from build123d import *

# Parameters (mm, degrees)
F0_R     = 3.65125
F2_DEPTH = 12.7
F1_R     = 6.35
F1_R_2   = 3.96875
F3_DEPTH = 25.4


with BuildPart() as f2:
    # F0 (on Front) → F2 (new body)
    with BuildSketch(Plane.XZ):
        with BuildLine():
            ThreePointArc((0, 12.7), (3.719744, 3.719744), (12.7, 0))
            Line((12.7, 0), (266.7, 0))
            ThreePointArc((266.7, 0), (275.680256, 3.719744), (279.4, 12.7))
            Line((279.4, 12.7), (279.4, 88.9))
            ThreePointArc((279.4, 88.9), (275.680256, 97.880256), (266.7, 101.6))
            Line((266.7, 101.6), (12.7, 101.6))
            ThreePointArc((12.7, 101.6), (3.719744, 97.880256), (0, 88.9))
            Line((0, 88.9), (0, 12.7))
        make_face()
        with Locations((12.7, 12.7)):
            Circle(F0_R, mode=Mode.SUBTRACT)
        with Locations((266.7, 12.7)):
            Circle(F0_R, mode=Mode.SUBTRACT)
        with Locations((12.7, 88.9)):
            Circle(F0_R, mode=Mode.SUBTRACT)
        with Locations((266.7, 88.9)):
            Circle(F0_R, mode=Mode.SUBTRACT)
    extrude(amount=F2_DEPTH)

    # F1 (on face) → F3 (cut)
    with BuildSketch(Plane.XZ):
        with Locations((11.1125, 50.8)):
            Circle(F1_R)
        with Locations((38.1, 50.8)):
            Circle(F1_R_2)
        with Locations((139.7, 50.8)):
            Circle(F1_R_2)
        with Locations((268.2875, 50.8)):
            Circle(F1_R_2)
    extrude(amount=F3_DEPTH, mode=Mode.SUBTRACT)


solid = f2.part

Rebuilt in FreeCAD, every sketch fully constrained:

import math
import FreeCAD as App
import Part
import Sketcher
Q = App.Units.Quantity

doc = App.newDocument("Part")
params = doc.addObject("Spreadsheet::Sheet", "Params")
for row, (alias, value) in enumerate([
    ("sketch1_radius", "0.5 in"),
    ("sketch1_width", "10 in"),
    ("sketch1_height", "3 in"),
    ("pad1_length", "0.5 in"),
    ("sketch2_diameter", "0.5 in"),
    ("sketch2_diameter2", "0.3125 in"),
    ("pocket1_length", "1 in"),
], start=1):
    params.set(f"A{row}", alias)
    params.set(f"B{row}", "=" + value)
    params.setAlias(f"B{row}", alias)

body = doc.addObject("PartDesign::Body", "Body")

sketch1 = body.newObject("Sketcher::SketchObject", "Sketch")
sketch1.AttachmentSupport = (doc.getObject("XZ_Plane"), [""])
sketch1.MapMode = "FlatFace"
sketch1.addGeometry([
    Part.ArcOfCircle(Part.Circle(App.Vector(12.7, 12.7, 0), App.Vector(0, 0, 1), 12.7), math.radians(-180), math.radians(-90)),
    Part.LineSegment(App.Vector(12.7, 0, 0), App.Vector(266.7, 0, 0)),
    Part.ArcOfCircle(Part.Circle(App.Vector(266.7, 12.7, 0), App.Vector(0, 0, 1), 12.7), math.radians(-90), math.radians(0)),
    Part.LineSegment(App.Vector(279.4, 12.7, 0), App.Vector(279.4, 88.9, 0)),
    Part.ArcOfCircle(Part.Circle(App.Vector(266.7, 88.9, 0), App.Vector(0, 0, 1), 12.7), math.radians(0), math.radians(90)),
    Part.LineSegment(App.Vector(266.7, 101.6, 0), App.Vector(12.7, 101.6, 0)),
    Part.ArcOfCircle(Part.Circle(App.Vector(12.7, 88.9, 0), App.Vector(0, 0, 1), 12.7), math.radians(90), math.radians(180)),
    Part.LineSegment(App.Vector(0, 88.9, 0), App.Vector(0, 12.7, 0)),
    Part.Circle(App.Vector(12.7, 12.7, 0), App.Vector(0, 0, 1), 3.7),
    Part.Circle(App.Vector(266.7, 12.7, 0), App.Vector(0, 0, 1), 3.7),
    Part.Circle(App.Vector(12.7, 88.9, 0), App.Vector(0, 0, 1), 3.7),
    Part.Circle(App.Vector(266.7, 88.9, 0), App.Vector(0, 0, 1), 3.7),
], False)
sketch1.addConstraint([
    Sketcher.Constraint("Tangent", 0, 2, 1, 1),
    Sketcher.Constraint("Tangent", 1, 2, 2, 1),
    Sketcher.Constraint("Tangent", 2, 2, 3, 1),
    Sketcher.Constraint("Tangent", 3, 2, 4, 1),
    Sketcher.Constraint("Tangent", 4, 2, 5, 1),
    Sketcher.Constraint("Tangent", 5, 2, 6, 1),
    Sketcher.Constraint("Tangent", 6, 2, 7, 1),
    Sketcher.Constraint("Tangent", 7, 2, 0, 1),
    Sketcher.Constraint("Horizontal", 1),
    Sketcher.Constraint("Vertical", 3),
    Sketcher.Constraint("Horizontal", 5),
    Sketcher.Constraint("Vertical", 7),
    Sketcher.Constraint("Coincident", 8, 3, 0, 3),
    Sketcher.Constraint("Coincident", 9, 3, 2, 3),
    Sketcher.Constraint("Coincident", 10, 3, 6, 3),
    Sketcher.Constraint("Coincident", 11, 3, 4, 3),
    Sketcher.Constraint("Equal", 0, 2),
    Sketcher.Constraint("Equal", 2, 4),
    Sketcher.Constraint("Equal", 4, 6),
    Sketcher.Constraint("Equal", 8, 9),
    Sketcher.Constraint("Equal", 9, 10),
    Sketcher.Constraint("Equal", 10, 11),
    Sketcher.Constraint("PointOnObject", 0, 2, -1),
    Sketcher.Constraint("PointOnObject", 6, 2, -2),
    Sketcher.Constraint("Radius", 0, Q("0.5 in")),
    Sketcher.Constraint("DistanceX", 1, 1, 1, 2, Q("10 in")),
    Sketcher.Constraint("DistanceY", 3, 1, 3, 2, Q("3 in")),
    Sketcher.Constraint("Diameter", 8, Q("0.2875 in")),
])
sketch1.setExpression("Constraints[24]", "Params.sketch1_radius")
sketch1.setExpression("Constraints[25]", "Params.sketch1_width")
sketch1.setExpression("Constraints[26]", "Params.sketch1_height")
pad1 = body.newObject("PartDesign::Pad", "Pad")
pad1.Profile = sketch1
pad1.setExpression("Length", "Params.pad1_length")

sketch2 = body.newObject("Sketcher::SketchObject", "Sketch001")
sketch2.AttachmentSupport = (doc.getObject("XZ_Plane"), [""])
sketch2.MapMode = "FlatFace"
sketch2.addGeometry([
    Part.Circle(App.Vector(11.1, 50.8, 0), App.Vector(0, 0, 1), 6.3),
    Part.Circle(App.Vector(38.1, 50.8, 0), App.Vector(0, 0, 1), 4),
    Part.Circle(App.Vector(139.7, 50.8, 0), App.Vector(0, 0, 1), 4),
    Part.Circle(App.Vector(268.3, 50.8, 0), App.Vector(0, 0, 1), 4),
], False)
sketch2.addConstraint([
    Sketcher.Constraint("Equal", 1, 2),
    Sketcher.Constraint("Equal", 2, 3),
    Sketcher.Constraint("Horizontal", 0, 3, 1, 3),
    Sketcher.Constraint("Horizontal", 1, 3, 2, 3),
    Sketcher.Constraint("Horizontal", 2, 3, 3, 3),
    Sketcher.Constraint("Diameter", 0, Q("0.5 in")),
    Sketcher.Constraint("Diameter", 1, Q("0.3125 in")),
    Sketcher.Constraint("DistanceY", -1, 1, 0, 3, Q("2 in")),
    Sketcher.Constraint("DistanceX", 1, 3, 2, 3, Q("4 in")),
    Sketcher.Constraint("DistanceX", -1, 1, 1, 3, Q("1.5 in")),
    Sketcher.Constraint("DistanceX", -1, 1, 0, 3, Q("0.4375 in")),
    Sketcher.Constraint("DistanceX", -1, 1, 3, 3, Q("10.5625 in")),
])
sketch2.setExpression("Constraints[5]", "Params.sketch2_diameter")
sketch2.setExpression("Constraints[6]", "Params.sketch2_diameter2")
pocket1 = body.newObject("PartDesign::Pocket", "Pocket")
pocket1.Profile = sketch2
pocket1.setExpression("Length", "Params.pocket1_length")
pocket1.Reversed = True

doc.recompute()
